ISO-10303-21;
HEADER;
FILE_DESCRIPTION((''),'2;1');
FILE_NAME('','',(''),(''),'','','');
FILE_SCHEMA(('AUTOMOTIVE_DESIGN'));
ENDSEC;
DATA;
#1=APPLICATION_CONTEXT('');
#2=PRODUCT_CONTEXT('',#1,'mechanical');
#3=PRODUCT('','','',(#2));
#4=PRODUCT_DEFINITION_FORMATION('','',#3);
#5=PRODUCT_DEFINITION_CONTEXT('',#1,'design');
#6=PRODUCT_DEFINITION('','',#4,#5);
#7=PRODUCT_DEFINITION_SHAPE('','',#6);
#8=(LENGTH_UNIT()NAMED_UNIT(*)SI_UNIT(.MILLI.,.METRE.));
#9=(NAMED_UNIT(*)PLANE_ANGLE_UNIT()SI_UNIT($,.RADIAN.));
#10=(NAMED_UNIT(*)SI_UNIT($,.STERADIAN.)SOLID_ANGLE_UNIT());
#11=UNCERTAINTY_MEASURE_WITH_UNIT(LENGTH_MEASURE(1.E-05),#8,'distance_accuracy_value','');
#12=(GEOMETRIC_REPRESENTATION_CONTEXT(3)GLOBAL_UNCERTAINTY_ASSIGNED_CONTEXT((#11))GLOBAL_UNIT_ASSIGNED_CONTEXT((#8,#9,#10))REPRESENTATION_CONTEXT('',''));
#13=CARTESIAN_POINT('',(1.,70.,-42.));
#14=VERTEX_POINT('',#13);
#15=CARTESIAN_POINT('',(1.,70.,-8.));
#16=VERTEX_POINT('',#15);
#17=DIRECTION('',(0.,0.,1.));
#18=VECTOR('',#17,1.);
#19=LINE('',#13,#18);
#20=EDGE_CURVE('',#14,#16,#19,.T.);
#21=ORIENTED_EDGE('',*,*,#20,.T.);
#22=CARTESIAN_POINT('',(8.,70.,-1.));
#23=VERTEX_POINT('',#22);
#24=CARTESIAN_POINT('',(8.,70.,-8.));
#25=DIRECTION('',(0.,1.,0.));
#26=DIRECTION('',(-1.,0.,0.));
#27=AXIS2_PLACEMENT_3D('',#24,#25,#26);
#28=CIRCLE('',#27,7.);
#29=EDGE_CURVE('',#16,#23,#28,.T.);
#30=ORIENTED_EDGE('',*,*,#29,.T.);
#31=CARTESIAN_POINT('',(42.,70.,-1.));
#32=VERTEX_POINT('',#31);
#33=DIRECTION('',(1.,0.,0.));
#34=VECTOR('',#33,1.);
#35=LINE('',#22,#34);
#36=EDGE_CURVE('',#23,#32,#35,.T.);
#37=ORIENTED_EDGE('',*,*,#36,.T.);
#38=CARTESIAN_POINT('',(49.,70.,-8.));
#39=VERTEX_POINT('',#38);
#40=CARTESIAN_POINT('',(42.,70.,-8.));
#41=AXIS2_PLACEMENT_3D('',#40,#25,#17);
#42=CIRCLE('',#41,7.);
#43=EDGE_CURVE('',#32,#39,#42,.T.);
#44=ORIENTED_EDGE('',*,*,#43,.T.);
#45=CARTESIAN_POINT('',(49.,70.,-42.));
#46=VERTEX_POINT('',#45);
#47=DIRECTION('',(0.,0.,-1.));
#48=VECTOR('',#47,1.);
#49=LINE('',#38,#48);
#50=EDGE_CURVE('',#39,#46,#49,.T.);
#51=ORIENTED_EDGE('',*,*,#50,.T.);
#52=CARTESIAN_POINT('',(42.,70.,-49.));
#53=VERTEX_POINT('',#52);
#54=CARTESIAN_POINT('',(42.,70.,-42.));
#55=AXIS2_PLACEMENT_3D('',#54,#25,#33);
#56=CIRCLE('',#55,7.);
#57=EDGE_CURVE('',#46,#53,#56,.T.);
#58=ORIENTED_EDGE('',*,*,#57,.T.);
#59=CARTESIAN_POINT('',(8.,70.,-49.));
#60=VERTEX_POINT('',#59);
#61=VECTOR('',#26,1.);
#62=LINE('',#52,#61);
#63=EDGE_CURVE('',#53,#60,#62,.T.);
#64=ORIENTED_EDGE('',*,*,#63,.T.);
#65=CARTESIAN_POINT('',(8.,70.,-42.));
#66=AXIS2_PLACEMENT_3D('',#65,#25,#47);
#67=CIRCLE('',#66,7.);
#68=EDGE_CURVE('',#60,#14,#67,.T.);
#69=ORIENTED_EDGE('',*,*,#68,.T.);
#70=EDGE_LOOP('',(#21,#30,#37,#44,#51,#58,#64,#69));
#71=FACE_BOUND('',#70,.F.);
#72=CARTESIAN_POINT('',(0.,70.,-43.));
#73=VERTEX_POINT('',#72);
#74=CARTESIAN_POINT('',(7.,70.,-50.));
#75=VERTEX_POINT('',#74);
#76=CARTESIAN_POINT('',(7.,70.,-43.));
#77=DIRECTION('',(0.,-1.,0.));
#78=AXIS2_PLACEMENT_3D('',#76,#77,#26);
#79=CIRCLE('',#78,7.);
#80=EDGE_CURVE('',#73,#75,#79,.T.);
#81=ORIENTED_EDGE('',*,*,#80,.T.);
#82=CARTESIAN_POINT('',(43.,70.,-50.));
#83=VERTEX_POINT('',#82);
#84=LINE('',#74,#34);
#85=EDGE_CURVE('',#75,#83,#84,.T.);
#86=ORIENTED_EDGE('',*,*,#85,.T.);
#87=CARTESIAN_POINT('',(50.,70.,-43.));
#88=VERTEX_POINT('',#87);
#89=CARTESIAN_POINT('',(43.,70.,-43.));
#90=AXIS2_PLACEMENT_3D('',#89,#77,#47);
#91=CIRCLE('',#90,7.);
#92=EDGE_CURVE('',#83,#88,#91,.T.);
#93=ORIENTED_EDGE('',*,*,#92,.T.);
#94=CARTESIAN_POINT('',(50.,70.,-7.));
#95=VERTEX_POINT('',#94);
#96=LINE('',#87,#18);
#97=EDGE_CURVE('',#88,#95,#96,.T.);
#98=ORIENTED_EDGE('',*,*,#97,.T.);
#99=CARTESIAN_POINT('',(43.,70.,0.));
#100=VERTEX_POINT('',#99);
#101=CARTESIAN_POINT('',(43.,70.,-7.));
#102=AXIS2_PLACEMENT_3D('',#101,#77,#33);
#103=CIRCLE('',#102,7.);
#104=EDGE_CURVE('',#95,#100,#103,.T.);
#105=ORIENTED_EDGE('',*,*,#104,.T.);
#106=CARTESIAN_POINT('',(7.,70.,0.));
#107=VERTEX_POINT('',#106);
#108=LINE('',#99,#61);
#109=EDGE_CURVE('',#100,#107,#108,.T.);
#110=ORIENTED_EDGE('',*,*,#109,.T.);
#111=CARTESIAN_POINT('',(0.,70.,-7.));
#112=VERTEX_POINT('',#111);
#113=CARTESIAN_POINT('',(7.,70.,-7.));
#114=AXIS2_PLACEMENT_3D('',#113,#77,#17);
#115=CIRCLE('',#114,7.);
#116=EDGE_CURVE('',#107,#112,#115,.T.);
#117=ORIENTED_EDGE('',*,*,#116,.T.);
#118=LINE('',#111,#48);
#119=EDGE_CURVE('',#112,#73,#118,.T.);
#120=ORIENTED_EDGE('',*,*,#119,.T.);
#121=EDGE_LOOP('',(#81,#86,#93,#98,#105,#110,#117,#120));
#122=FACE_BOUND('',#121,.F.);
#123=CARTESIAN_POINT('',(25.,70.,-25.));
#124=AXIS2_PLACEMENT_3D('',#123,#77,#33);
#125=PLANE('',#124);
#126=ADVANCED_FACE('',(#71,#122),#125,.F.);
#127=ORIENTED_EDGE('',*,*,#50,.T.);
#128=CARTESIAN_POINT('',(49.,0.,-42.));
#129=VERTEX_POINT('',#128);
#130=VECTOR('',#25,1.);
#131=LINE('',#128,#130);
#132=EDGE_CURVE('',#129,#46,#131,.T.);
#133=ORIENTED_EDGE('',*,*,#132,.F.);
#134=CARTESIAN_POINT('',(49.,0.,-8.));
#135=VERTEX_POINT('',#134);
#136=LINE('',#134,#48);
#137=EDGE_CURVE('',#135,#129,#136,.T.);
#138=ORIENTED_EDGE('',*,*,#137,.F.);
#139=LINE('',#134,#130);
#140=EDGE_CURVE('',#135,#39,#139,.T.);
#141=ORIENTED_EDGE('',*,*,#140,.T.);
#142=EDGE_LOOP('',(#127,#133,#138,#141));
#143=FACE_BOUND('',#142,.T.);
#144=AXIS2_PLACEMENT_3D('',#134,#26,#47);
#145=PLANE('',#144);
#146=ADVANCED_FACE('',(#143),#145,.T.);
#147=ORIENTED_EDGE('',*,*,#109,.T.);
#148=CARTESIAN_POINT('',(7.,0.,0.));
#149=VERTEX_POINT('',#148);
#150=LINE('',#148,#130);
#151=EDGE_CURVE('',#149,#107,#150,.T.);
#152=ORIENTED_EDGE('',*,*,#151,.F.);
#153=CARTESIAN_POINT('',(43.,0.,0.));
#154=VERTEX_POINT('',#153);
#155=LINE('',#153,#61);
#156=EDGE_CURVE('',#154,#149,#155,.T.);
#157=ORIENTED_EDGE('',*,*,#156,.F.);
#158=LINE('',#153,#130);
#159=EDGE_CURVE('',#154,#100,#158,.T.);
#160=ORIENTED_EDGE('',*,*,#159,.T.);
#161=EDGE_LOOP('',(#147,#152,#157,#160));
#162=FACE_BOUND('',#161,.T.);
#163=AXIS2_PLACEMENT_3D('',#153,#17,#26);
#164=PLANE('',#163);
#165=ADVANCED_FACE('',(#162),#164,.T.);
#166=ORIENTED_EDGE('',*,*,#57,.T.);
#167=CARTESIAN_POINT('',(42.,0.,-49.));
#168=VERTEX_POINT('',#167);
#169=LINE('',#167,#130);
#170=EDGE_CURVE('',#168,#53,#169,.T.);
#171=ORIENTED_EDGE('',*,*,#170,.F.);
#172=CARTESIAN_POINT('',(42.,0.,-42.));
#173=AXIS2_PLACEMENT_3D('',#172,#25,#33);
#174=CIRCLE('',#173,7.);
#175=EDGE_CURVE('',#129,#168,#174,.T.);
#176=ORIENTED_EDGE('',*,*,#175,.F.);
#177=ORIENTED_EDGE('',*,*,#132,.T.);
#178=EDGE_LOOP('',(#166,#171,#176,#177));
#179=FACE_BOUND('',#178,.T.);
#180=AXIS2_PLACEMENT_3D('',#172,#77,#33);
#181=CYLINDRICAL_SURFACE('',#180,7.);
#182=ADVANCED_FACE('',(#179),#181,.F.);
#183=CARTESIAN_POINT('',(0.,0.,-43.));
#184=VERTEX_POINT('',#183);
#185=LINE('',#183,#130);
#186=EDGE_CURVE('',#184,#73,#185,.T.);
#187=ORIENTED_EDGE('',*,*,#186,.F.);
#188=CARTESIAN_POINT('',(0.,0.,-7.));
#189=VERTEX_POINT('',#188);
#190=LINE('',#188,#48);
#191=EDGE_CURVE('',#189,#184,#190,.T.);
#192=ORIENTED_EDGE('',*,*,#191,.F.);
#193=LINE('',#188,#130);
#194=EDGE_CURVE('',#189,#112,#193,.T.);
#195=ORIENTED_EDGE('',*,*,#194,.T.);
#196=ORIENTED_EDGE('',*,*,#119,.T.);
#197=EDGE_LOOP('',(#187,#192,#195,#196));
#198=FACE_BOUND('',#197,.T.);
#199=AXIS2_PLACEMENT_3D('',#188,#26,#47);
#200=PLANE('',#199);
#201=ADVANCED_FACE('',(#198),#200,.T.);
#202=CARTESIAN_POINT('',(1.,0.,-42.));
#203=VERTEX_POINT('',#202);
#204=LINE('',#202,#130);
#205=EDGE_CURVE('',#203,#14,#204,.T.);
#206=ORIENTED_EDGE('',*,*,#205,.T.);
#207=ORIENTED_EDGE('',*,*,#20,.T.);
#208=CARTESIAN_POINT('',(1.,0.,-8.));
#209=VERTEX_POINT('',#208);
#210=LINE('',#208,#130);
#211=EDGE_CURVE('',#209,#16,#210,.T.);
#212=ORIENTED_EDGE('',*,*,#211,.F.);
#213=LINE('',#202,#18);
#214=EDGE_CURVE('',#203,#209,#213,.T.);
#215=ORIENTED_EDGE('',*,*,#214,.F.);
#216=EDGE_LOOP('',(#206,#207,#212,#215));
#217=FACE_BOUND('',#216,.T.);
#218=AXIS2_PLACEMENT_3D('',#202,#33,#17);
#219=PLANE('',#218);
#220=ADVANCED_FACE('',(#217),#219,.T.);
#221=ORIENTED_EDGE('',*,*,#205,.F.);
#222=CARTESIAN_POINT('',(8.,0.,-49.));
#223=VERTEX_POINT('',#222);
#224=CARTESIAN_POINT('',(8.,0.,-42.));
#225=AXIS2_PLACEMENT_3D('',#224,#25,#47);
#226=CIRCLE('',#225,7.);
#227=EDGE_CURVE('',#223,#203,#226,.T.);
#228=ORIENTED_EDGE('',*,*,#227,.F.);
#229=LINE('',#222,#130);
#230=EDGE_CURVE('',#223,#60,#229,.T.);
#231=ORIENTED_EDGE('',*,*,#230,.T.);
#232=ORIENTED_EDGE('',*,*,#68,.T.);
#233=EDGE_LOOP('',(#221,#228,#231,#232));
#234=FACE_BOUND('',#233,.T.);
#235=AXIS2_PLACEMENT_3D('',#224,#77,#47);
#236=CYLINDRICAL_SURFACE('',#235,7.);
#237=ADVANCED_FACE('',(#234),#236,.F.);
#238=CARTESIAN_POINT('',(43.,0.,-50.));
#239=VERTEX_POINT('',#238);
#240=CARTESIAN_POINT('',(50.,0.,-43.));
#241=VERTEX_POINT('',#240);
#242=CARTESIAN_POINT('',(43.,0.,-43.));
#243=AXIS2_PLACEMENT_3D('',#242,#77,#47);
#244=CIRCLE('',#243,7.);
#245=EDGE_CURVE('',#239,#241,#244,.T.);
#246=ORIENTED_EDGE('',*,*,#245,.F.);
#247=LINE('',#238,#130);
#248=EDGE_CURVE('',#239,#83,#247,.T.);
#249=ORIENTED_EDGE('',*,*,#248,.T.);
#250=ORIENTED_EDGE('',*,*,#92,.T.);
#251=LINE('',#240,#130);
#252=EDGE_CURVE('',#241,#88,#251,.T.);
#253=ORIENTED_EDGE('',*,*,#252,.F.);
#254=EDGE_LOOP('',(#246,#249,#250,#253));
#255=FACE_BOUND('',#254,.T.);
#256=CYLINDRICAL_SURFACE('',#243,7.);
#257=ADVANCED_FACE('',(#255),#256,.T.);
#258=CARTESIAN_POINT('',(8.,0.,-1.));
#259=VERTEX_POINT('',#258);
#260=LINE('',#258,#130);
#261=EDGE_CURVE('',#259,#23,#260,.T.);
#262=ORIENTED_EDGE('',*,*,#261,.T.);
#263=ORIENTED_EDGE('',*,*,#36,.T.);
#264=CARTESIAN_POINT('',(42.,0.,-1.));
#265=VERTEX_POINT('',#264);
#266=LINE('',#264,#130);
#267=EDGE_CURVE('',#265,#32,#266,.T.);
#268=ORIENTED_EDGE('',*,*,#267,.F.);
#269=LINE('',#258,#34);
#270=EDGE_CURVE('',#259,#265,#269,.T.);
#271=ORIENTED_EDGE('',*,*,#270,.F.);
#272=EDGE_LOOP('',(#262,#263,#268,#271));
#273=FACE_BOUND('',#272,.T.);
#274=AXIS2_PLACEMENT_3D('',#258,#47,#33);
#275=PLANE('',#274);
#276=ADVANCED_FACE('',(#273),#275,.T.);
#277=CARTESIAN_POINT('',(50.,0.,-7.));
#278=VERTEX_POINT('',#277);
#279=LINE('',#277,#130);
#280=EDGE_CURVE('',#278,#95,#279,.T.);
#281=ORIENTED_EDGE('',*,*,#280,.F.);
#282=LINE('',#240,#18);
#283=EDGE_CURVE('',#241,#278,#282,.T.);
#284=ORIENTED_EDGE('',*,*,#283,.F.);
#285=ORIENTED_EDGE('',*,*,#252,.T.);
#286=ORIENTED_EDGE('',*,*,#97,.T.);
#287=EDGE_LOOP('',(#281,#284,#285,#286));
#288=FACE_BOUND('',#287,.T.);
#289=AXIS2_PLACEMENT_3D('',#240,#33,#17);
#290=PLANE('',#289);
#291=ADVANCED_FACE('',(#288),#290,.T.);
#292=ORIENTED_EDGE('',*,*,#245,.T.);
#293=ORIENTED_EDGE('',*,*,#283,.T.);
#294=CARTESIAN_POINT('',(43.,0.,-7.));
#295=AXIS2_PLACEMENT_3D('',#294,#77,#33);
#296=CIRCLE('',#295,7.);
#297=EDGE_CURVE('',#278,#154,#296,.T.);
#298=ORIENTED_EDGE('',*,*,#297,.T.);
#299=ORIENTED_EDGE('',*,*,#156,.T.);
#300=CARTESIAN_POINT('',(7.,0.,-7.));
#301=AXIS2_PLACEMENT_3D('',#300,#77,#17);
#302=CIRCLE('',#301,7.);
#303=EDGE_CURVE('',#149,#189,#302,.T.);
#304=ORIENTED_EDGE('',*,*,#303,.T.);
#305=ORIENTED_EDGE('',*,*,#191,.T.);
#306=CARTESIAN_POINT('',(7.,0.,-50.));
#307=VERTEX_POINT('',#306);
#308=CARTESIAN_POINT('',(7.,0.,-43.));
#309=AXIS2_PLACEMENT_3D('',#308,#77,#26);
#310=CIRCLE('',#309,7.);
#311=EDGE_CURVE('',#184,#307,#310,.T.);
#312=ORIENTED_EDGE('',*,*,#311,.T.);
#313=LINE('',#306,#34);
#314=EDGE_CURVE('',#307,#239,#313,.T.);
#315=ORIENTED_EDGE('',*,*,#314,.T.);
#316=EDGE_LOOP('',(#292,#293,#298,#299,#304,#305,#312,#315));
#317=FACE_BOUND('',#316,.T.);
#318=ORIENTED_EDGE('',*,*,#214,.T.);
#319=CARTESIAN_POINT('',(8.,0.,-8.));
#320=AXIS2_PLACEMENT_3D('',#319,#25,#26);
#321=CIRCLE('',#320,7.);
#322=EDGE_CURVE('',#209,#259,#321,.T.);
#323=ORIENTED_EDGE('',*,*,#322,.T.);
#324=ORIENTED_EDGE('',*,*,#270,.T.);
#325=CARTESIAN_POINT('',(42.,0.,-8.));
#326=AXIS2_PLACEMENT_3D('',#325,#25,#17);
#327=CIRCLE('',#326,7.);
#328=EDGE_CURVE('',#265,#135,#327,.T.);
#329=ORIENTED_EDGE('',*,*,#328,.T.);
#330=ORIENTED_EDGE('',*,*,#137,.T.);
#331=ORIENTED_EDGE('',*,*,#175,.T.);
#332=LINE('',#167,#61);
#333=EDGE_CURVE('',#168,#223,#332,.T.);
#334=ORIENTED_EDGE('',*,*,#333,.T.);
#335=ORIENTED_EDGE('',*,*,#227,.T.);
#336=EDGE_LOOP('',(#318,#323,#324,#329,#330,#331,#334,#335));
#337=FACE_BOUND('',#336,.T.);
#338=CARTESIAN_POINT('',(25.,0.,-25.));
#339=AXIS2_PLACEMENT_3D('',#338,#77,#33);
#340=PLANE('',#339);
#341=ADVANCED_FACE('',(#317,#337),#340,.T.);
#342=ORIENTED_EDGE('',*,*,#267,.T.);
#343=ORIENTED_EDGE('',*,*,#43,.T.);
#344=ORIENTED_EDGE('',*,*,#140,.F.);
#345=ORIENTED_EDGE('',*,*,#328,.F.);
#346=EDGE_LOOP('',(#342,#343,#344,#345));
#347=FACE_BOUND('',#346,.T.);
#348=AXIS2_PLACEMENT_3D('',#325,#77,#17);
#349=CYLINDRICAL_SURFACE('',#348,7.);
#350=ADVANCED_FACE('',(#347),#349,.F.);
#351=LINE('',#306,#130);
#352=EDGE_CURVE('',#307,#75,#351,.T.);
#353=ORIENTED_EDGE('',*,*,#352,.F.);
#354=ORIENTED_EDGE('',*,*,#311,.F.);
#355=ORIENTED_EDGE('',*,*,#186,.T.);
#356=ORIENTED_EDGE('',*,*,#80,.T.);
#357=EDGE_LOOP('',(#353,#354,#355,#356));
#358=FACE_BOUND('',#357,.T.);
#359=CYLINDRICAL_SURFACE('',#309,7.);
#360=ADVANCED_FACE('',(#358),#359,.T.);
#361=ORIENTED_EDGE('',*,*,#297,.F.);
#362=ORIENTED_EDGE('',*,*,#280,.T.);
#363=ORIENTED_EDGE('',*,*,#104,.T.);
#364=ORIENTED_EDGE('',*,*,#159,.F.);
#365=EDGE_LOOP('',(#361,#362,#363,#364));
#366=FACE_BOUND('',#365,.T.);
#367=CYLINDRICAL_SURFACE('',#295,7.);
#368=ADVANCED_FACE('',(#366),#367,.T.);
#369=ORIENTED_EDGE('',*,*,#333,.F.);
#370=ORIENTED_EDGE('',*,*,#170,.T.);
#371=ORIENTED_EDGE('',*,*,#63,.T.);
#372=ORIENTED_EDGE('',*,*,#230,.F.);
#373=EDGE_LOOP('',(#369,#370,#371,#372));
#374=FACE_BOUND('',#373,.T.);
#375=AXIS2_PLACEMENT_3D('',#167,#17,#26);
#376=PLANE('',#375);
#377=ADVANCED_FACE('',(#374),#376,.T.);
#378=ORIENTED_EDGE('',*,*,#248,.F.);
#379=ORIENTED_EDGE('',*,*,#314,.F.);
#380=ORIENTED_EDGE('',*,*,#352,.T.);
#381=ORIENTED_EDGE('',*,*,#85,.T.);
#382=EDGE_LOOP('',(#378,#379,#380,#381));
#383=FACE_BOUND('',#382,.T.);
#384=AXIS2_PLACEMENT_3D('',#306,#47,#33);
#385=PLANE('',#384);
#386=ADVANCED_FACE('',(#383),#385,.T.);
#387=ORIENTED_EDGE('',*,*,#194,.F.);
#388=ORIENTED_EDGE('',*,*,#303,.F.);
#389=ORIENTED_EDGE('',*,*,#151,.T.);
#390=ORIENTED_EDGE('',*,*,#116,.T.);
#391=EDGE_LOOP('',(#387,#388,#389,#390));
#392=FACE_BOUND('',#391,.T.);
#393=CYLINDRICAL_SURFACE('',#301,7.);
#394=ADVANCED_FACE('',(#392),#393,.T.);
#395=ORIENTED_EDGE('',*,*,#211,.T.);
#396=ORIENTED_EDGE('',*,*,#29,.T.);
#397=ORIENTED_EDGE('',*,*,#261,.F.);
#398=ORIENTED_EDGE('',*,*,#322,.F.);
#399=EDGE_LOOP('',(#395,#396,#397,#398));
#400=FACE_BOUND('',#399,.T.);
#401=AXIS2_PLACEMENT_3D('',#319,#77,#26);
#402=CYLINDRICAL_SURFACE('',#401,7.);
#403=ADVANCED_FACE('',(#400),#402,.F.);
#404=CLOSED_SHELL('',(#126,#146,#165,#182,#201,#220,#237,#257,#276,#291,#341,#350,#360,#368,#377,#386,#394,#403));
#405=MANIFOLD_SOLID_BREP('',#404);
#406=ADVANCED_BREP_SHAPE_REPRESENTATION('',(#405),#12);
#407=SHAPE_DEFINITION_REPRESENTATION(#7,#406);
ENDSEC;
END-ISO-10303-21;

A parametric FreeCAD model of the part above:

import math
import FreeCAD as App
import Part
import Sketcher

doc = App.newDocument("Part")
params = doc.addObject("Spreadsheet::Sheet", "Params")
for row, (alias, value) in enumerate([
    ("sketch1_radius", "7 mm"),
    ("sketch1_width", "36 mm"),
    ("sketch1_width2", "34 mm"),
    ("pad1_length", "70 mm"),
], start=1):
    params.set(f"A{row}", alias)
    params.set(f"B{row}", "=" + value)
    params.setAlias(f"B{row}", alias)

body = doc.addObject("PartDesign::Body", "Body")

sketch1 = body.newObject("Sketcher::SketchObject", "Sketch")
sketch1.AttachmentSupport = (doc.getObject("XY_Plane"), [""])
sketch1.MapMode = "FlatFace"
sketch1.addGeometry(Part.LineSegment(App.Vector(43, 0, 0), App.Vector(7, 0, 0)), False)
sketch1.addGeometry(Part.ArcOfCircle(Part.Circle(App.Vector(7, -7, 0), App.Vector(0, 0, 1), 7), math.radians(90), math.radians(180)), False)
sketch1.addGeometry(Part.LineSegment(App.Vector(0, -7, 0), App.Vector(0, -43, 0)), False)
sketch1.addGeometry(Part.ArcOfCircle(Part.Circle(App.Vector(7, -43, 0), App.Vector(0, 0, 1), 7), math.radians(180), math.radians(270)), False)
sketch1.addGeometry(Part.LineSegment(App.Vector(7, -50, 0), App.Vector(43, -50, 0)), False)
sketch1.addGeometry(Part.ArcOfCircle(Part.Circle(App.Vector(43, -43, 0), App.Vector(0, 0, 1), 7), math.radians(-90), math.radians(0)), False)
sketch1.addGeometry(Part.LineSegment(App.Vector(50, -43, 0), App.Vector(50, -7, 0)), False)
sketch1.addGeometry(Part.ArcOfCircle(Part.Circle(App.Vector(43, -7, 0), App.Vector(0, 0, 1), 7), math.radians(0), math.radians(90)), False)
sketch1.addGeometry(Part.LineSegment(App.Vector(1, -42, 0), App.Vector(1, -8, 0)), False)
sketch1.addGeometry(Part.ArcOfCircle(Part.Circle(App.Vector(8, -8, 0), App.Vector(0, 0, 1), 7), math.radians(90), math.radians(180)), False)
sketch1.addGeometry(Part.LineSegment(App.Vector(8, -1, 0), App.Vector(42, -1, 0)), False)
sketch1.addGeometry(Part.ArcOfCircle(Part.Circle(App.Vector(42, -8, 0), App.Vector(0, 0, 1), 7), math.radians(0), math.radians(90)), False)
sketch1.addGeometry(Part.LineSegment(App.Vector(49, -8, 0), App.Vector(49, -42, 0)), False)
sketch1.addGeometry(Part.ArcOfCircle(Part.Circle(App.Vector(42, -42, 0), App.Vector(0, 0, 1), 7), math.radians(-90), math.radians(0)), False)
sketch1.addGeometry(Part.LineSegment(App.Vector(42, -49, 0), App.Vector(8, -49, 0)), False)
sketch1.addGeometry(Part.ArcOfCircle(Part.Circle(App.Vector(8, -42, 0), App.Vector(0, 0, 1), 7), math.radians(180), math.radians(270)), False)
sketch1.addConstraint(Sketcher.Constraint("Tangent", 0, 2, 1, 1))
sketch1.addConstraint(Sketcher.Constraint("Tangent", 1, 2, 2, 1))
sketch1.addConstraint(Sketcher.Constraint("Tangent", 2, 2, 3, 1))
sketch1.addConstraint(Sketcher.Constraint("Tangent", 3, 2, 4, 1))
sketch1.addConstraint(Sketcher.Constraint("Tangent", 4, 2, 5, 1))
sketch1.addConstraint(Sketcher.Constraint("Tangent", 5, 2, 6, 1))
sketch1.addConstraint(Sketcher.Constraint("Tangent", 6, 2, 7, 1))
sketch1.addConstraint(Sketcher.Constraint("Tangent", 7, 2, 0, 1))
sketch1.addConstraint(Sketcher.Constraint("Tangent", 8, 2, 9, 2))
sketch1.addConstraint(Sketcher.Constraint("Tangent", 9, 1, 10, 1))
sketch1.addConstraint(Sketcher.Constraint("Tangent", 10, 2, 11, 2))
sketch1.addConstraint(Sketcher.Constraint("Tangent", 11, 1, 12, 1))
sketch1.addConstraint(Sketcher.Constraint("Tangent", 12, 2, 13, 2))
sketch1.addConstraint(Sketcher.Constraint("Tangent", 13, 1, 14, 1))
sketch1.addConstraint(Sketcher.Constraint("Tangent", 14, 2, 15, 2))
sketch1.addConstraint(Sketcher.Constraint("Tangent", 15, 1, 8, 1))
sketch1.addConstraint(Sketcher.Constraint("Horizontal", 0))
sketch1.addConstraint(Sketcher.Constraint("Vertical", 2))
sketch1.addConstraint(Sketcher.Constraint("Horizontal", 4))
sketch1.addConstraint(Sketcher.Constraint("Vertical", 6))
sketch1.addConstraint(Sketcher.Constraint("Vertical", 8))
sketch1.addConstraint(Sketcher.Constraint("Horizontal", 10))
sketch1.addConstraint(Sketcher.Constraint("Vertical", 12))
sketch1.addConstraint(Sketcher.Constraint("Horizontal", 14))
sketch1.addConstraint(Sketcher.Constraint("Equal", 1, 3))
sketch1.addConstraint(Sketcher.Constraint("Equal", 3, 5))
sketch1.addConstraint(Sketcher.Constraint("Equal", 5, 7))
sketch1.addConstraint(Sketcher.Constraint("Equal", 7, 9))
sketch1.addConstraint(Sketcher.Constraint("Equal", 9, 11))
sketch1.addConstraint(Sketcher.Constraint("Equal", 11, 13))
sketch1.addConstraint(Sketcher.Constraint("Equal", 13, 15))
sketch1.addConstraint(Sketcher.Constraint("PointOnObject", 0, 2, -1))
sketch1.addConstraint(Sketcher.Constraint("PointOnObject", 1, 2, -2))
sketch1.addConstraint(Sketcher.Constraint("Equal", 4, 2))
sketch1.addConstraint(Sketcher.Constraint("Equal", 14, 8))
sketch1.addConstraint(Sketcher.Constraint("Radius", 1, 7.0))
sketch1.addConstraint(Sketcher.Constraint("DistanceX", 0, 2, 0, 1, 36.0))
sketch1.addConstraint(Sketcher.Constraint("DistanceX", 10, 1, 10, 2, 34.0))
sketch1.addConstraint(Sketcher.Constraint("DistanceX", -1, 1, 9, 3, 8.0))
sketch1.addConstraint(Sketcher.Constraint("DistanceY", 9, 3, -1, 1, 8.0))
sketch1.setExpression("Constraints[35]", "Params.sketch1_radius")
sketch1.setExpression("Constraints[36]", "Params.sketch1_width")
sketch1.setExpression("Constraints[37]", "Params.sketch1_width2")
pad1 = body.newObject("PartDesign::Pad", "Pad")
pad1.Profile = sketch1
pad1.setExpression("Length", "Params.pad1_length")
pad1.Reversed = True
body2 = doc.addObject("PartDesign::Body", "Body001")
doc.recompute()

body.Placement = App.Placement(App.Vector(0, 0, 0), App.Rotation(App.Vector(1, 0, 0), 90))
boolean = body2.newObject("PartDesign::Boolean", "Boolean")
boolean.Type = "Fuse"
boolean.addObjects([body])

doc.recompute()
